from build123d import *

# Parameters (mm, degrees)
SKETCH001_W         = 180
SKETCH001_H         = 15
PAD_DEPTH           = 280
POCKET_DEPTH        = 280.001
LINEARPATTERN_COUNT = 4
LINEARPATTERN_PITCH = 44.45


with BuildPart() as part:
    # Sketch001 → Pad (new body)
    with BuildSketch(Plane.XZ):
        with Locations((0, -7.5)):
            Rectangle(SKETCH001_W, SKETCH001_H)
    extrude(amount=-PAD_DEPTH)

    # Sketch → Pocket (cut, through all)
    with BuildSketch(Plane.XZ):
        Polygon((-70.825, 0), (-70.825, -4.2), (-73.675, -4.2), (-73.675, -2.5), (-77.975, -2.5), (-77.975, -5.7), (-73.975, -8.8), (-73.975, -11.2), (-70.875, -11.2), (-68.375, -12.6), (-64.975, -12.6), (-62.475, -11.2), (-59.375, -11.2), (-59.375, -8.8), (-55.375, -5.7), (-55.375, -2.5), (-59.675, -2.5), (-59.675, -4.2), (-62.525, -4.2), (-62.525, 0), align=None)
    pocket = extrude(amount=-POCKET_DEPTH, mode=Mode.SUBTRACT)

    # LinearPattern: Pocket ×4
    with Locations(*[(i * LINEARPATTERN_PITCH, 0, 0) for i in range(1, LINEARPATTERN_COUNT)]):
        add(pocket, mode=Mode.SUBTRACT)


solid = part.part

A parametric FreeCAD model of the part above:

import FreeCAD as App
import Part
import Sketcher

V = App.Vector
Q = App.Units.Quantity

doc = App.newDocument("Part")
body = doc.addObject("PartDesign::Body", "Body")

# Sketch on XZ plane
sketch1 = doc.addObject("Sketcher::SketchObject", "Sketch")
body.addObject(sketch1)
sketch1.AttachmentSupport = (doc.XZ_Plane, [""])
sketch1.MapMode = "FlatFace"
sketch1.addGeometry(Part.LineSegment(V(-90, 0, 0), V(-90, -15, 0)), False)
sketch1.addGeometry(Part.LineSegment(V(-90, -15, 0), V(90, -15, 0)), False)
sketch1.addGeometry(Part.LineSegment(V(90, -15, 0), V(90, 0, 0)), False)
sketch1.addGeometry(Part.LineSegment(V(90, 0, 0), V(-90, 0, 0)), False)
sketch1.addConstraint(Sketcher.Constraint("Coincident", 0, 2, 1, 1))
sketch1.addConstraint(Sketcher.Constraint("Coincident", 1, 2, 2, 1))
sketch1.addConstraint(Sketcher.Constraint("Coincident", 2, 2, 3, 1))
sketch1.addConstraint(Sketcher.Constraint("Coincident", 3, 2, 0, 1))
sketch1.addConstraint(Sketcher.Constraint("Vertical", 0))
sketch1.addConstraint(Sketcher.Constraint("Horizontal", 1))
sketch1.addConstraint(Sketcher.Constraint("Vertical", 2))
sketch1.addConstraint(Sketcher.Constraint("Horizontal", 3))
sketch1.addConstraint(Sketcher.Constraint("Symmetric", 2, 2, 3, 2, -1, 1))
sketch1.addConstraint(Sketcher.Constraint("DistanceX", 1, 1, 1, 2, Q("180 mm")))
sketch1.addConstraint(Sketcher.Constraint("DistanceY", 0, 2, 0, 1, Q("15 mm")))
pad1 = doc.addObject("PartDesign::Pad", "Pad")
body.addObject(pad1)
pad1.Profile = sketch1
pad1.Length = 280
pad1.Reversed = True

# Sketch on XZ plane
sketch2 = doc.addObject("Sketcher::SketchObject", "Sketch001")
body.addObject(sketch2)
sketch2.AttachmentSupport = (doc.XZ_Plane, [""])
sketch2.MapMode = "FlatFace"
sketch2.addGeometry(Part.LineSegment(V(-70.825, 0, 0), V(-70.825, -4.2, 0)), False)
sketch2.addGeometry(Part.LineSegment(V(-70.825, -4.2, 0), V(-73.675, -4.2, 0)), False)
sketch2.addGeometry(Part.LineSegment(V(-73.675, -4.2, 0), V(-73.675, -2.5, 0)), False)
sketch2.addGeometry(Part.LineSegment(V(-73.675, -2.5, 0), V(-77.975, -2.5, 0)), False)
sketch2.addGeometry(Part.LineSegment(V(-77.975, -2.5, 0), V(-77.975, -5.7, 0)), False)
sketch2.addGeometry(Part.LineSegment(V(-77.975, -5.7, 0), V(-73.975, -8.8, 0)), False)
sketch2.addGeometry(Part.LineSegment(V(-73.975, -8.8, 0), V(-73.975, -11.2, 0)), False)
sketch2.addGeometry(Part.LineSegment(V(-73.975, -11.2, 0), V(-70.875, -11.2, 0)), False)
sketch2.addGeometry(Part.LineSegment(V(-70.875, -11.2, 0), V(-68.375, -12.6, 0)), False)
sketch2.addGeometry(Part.LineSegment(V(-68.375, -12.6, 0), V(-64.975, -12.6, 0)), False)
sketch2.addGeometry(Part.LineSegment(V(-64.975, -12.6, 0), V(-62.475, -11.2, 0)), False)
sketch2.addGeometry(Part.LineSegment(V(-62.475, -11.2, 0), V(-59.375, -11.2, 0)), False)
sketch2.addGeometry(Part.LineSegment(V(-59.375, -11.2, 0), V(-59.375, -8.8, 0)), False)
sketch2.addGeometry(Part.LineSegment(V(-59.375, -8.8, 0), V(-55.375, -5.7, 0)), False)
sketch2.addGeometry(Part.LineSegment(V(-55.375, -5.7, 0), V(-55.375, -2.5, 0)), False)
sketch2.addGeometry(Part.LineSegment(V(-55.375, -2.5, 0), V(-59.675, -2.5, 0)), False)
sketch2.addGeometry(Part.LineSegment(V(-59.675, -2.5, 0), V(-59.675, -4.2, 0)), False)
sketch2.addGeometry(Part.LineSegment(V(-59.675, -4.2, 0), V(-62.525, -4.2, 0)), False)
sketch2.addGeometry(Part.LineSegment(V(-62.525, -4.2, 0), V(-62.525, 0, 0)), False)
sketch2.addGeometry(Part.LineSegment(V(-62.525, 0, 0), V(-70.825, 0, 0)), False)
sketch2.addConstraint(Sketcher.Constraint("Coincident", 0, 2, 1, 1))
sketch2.addConstraint(Sketcher.Constraint("Coincident", 1, 2, 2, 1))
sketch2.addConstraint(Sketcher.Constraint("Coincident", 2, 2, 3, 1))
sketch2.addConstraint(Sketcher.Constraint("Coincident", 3, 2, 4, 1))
sketch2.addConstraint(Sketcher.Constraint("Coincident", 4, 2, 5, 1))
sketch2.addConstraint(Sketcher.Constraint("Coincident", 5, 2, 6, 1))
sketch2.addConstraint(Sketcher.Constraint("Coincident", 6, 2, 7, 1))
sketch2.addConstraint(Sketcher.Constraint("Coincident", 7, 2, 8, 1))
sketch2.addConstraint(Sketcher.Constraint("Coincident", 8, 2, 9, 1))
sketch2.addConstraint(Sketcher.Constraint("Coincident", 9, 2, 10, 1))
sketch2.addConstraint(Sketcher.Constraint("Coincident", 10, 2, 11, 1))
sketch2.addConstraint(Sketcher.Constraint("Coincident", 11, 2, 12, 1))
sketch2.addConstraint(Sketcher.Constraint("Coincident", 12, 2, 13, 1))
sketch2.addConstraint(Sketcher.Constraint("Coincident", 13, 2, 14, 1))
sketch2.addConstraint(Sketcher.Constraint("Coincident", 14, 2, 15, 1))
sketch2.addConstraint(Sketcher.Constraint("Coincident", 15, 2, 16, 1))
sketch2.addConstraint(Sketcher.Constraint("Coincident", 16, 2, 17, 1))
sketch2.addConstraint(Sketcher.Constraint("Coincident", 17, 2, 18, 1))
sketch2.addConstraint(Sketcher.Constraint("Coincident", 18, 2, 19, 1))
sketch2.addConstraint(Sketcher.Constraint("Coincident", 19, 2, 0, 1))
sketch2.addConstraint(Sketcher.Constraint("Vertical", 0))
sketch2.addConstraint(Sketcher.Constraint("Horizontal", 1))
sketch2.addConstraint(Sketcher.Constraint("Vertical", 2))
sketch2.addConstraint(Sketcher.Constraint("Horizontal", 3))
sketch2.addConstraint(Sketcher.Constraint("Vertical", 4))
sketch2.addConstraint(Sketcher.Constraint("Vertical", 6))
sketch2.addConstraint(Sketcher.Constraint("Horizontal", 7))
sketch2.addConstraint(Sketcher.Constraint("Horizontal", 9))
sketch2.addConstraint(Sketcher.Constraint("Horizontal", 11))
sketch2.addConstraint(Sketcher.Constraint("Vertical", 12))
sketch2.addConstraint(Sketcher.Constraint("Vertical", 14))
sketch2.addConstraint(Sketcher.Constraint("Horizontal", 15))
sketch2.addConstraint(Sketcher.Constraint("Vertical", 16))
sketch2.addConstraint(Sketcher.Constraint("Horizontal", 17))
sketch2.addConstraint(Sketcher.Constraint("Vertical", 18))
sketch2.addConstraint(Sketcher.Constraint("Horizontal", 19))
sketch2.addConstraint(Sketcher.Constraint("PointOnObject", 18, 2, -1))
sketch2.addConstraint(Sketcher.Constraint("Horizontal", 7, 2, 10, 2))
sketch2.addConstraint(Sketcher.Constraint("Horizontal", 5, 2, 12, 2))
sketch2.addConstraint(Sketcher.Constraint("Horizontal", 4, 2, 13, 2))
sketch2.addConstraint(Sketcher.Constraint("Horizontal", 3, 2, 14, 2))
sketch2.addConstraint(Sketcher.Constraint("Horizontal", 1, 2, 16, 2))
sketch2.addConstraint(Sketcher.Constraint("Equal", 7, 11))
sketch2.addConstraint(Sketcher.Constraint("Equal", 3, 15))
sketch2.addConstraint(Sketcher.Constraint("Equal", 1, 17))
sketch2.addConstraint(Sketcher.Constraint("Equal", 8, 10))
sketch2.addConstraint(Sketcher.Constraint("Equal", 5, 13))
sketch2.addConstraint(Sketcher.Constraint("DistanceX", 3, 2, 3, 1, Q("4.3 mm")))
sketch2.addConstraint(Sketcher.Constraint("DistanceX", 7, 1, 7, 2, Q("3.1 mm")))
sketch2.addConstraint(Sketcher.Constraint("DistanceX", 9, 1, 9, 2, Q("3.4 mm")))
sketch2.addConstraint(Sketcher.Constraint("DistanceX", 19, 2, 19, 1, Q("8.3 mm")))
sketch2.addConstraint(Sketcher.Constraint("DistanceY", 0, 2, 0, 1, Q("4.2 mm")))
sketch2.addConstraint(Sketcher.Constraint("DistanceY", 2, 1, 2, 2, Q("1.7 mm")))
sketch2.addConstraint(Sketcher.Constraint("DistanceY", 4, 2, 4, 1, Q("3.2 mm")))
sketch2.addConstraint(Sketcher.Constraint("DistanceY", 6, 2, 6, 1, Q("2.4 mm")))
sketch2.addConstraint(Sketcher.Constraint("DistanceX", 4, 2, 5, 2, Q("4 mm")))
sketch2.addConstraint(Sketcher.Constraint("DistanceY", 6, 2, 1, 2, Q("7 mm")))
sketch2.addConstraint(Sketcher.Constraint("DistanceX", 6, 2, 9, 2, Q("9 mm")))
sketch2.addConstraint(Sketcher.Constraint("DistanceY", 8, 2, -1, 1, Q("12.6 mm")))
sketch2.addConstraint(Sketcher.Constraint("DistanceX", 0, 2, -1, 1, Q("70.825 mm")))
pocket1 = doc.addObject("PartDesign::Pocket", "Pocket")
body.addObject(pocket1)
pocket1.Profile = sketch2
pocket1.Type = "ThroughAll"
doc.recompute()

linearpattern = doc.addObject("PartDesign::LinearPattern", "LinearPattern")
body.addObject(linearpattern)
linearpattern.Originals = [pocket1]
linearpattern.Direction = (doc.X_Axis, [""])
linearpattern.Mode = "offset"
linearpattern.Offset = 44.45
linearpattern.Occurrences = 4
body.Tip = linearpattern

doc.recompute()
